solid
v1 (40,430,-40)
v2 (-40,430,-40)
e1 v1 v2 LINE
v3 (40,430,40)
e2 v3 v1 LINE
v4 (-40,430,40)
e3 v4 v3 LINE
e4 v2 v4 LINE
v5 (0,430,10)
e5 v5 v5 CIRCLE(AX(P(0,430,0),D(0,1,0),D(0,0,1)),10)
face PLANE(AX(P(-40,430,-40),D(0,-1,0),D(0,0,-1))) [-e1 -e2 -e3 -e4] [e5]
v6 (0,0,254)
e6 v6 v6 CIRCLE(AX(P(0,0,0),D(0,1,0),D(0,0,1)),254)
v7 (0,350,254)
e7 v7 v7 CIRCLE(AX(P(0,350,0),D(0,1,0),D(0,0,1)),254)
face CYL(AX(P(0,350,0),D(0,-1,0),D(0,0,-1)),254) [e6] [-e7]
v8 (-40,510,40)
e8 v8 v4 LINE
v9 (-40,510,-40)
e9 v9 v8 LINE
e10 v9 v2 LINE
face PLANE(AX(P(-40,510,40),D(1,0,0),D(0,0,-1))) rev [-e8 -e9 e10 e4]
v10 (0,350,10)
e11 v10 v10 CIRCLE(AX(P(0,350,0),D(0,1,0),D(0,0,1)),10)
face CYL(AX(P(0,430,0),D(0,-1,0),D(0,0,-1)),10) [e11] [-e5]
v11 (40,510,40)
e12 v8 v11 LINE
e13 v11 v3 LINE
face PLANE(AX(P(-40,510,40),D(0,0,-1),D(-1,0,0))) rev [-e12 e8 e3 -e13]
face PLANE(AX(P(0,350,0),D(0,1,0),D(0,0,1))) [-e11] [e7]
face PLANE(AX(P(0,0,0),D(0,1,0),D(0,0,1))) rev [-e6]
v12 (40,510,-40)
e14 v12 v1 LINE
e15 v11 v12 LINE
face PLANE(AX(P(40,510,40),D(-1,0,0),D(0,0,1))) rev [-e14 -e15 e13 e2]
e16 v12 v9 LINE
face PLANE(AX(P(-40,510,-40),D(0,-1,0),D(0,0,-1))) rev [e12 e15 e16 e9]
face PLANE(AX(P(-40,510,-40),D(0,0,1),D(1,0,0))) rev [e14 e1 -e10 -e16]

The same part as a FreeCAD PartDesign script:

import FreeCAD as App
import Part
import Sketcher
from FreeCAD import Vector

doc = App.newDocument("Part")
body = doc.addObject("PartDesign::Body", "Body")

sketch1 = body.newObject("Sketcher::SketchObject", "Sketch")
sketch1.AttachmentSupport = (doc.getObject("XZ_Plane"), [""])
sketch1.MapMode = "FlatFace"
sketch1.addGeometry(Part.Circle(Vector(0, 0, 0), Vector(0, 0, 1), 254), False)
sketch1.addConstraint([
    Sketcher.Constraint("Coincident", 0, 3, -1, 1),
    Sketcher.Constraint("Diameter", 0, 508.0),
])
pad1 = body.newObject("PartDesign::Pad", "Pad")
pad1.Profile = sketch1
pad1.Length = 350
pad1.Reversed = True

sketch2 = body.newObject("Sketcher::SketchObject", "Sketch001")
sketch2.AttachmentSupport = (doc.getObject("XZ_Plane"), [""])
sketch2.MapMode = "FlatFace"
sketch2.AttachmentOffset = App.Placement(Vector(0, 0, -350), App.Rotation())
sketch2.addGeometry(Part.Circle(Vector(0, 0, 0), Vector(0, 0, 1), 10), False)
sketch2.addConstraint([
    Sketcher.Constraint("Coincident", 0, 3, -1, 1),
    Sketcher.Constraint("Diameter", 0, 20.0),
])
pad2 = body.newObject("PartDesign::Pad", "Pad001")
pad2.Profile = sketch2
pad2.Length = 80
pad2.Reversed = True

sketch3 = body.newObject("Sketcher::SketchObject", "Sketch002")
sketch3.AttachmentSupport = (doc.getObject("XZ_Plane"), [""])
sketch3.MapMode = "FlatFace"
sketch3.AttachmentOffset = App.Placement(Vector(0, 0, -430), App.Rotation())
sketch3.addGeometry([
    Part.LineSegment(Vector(-40, -40, 0), Vector(-40, 40, 0)),
    Part.LineSegment(Vector(-40, 40, 0), Vector(40, 40, 0)),
    Part.LineSegment(Vector(40, 40, 0), Vector(40, -40, 0)),
    Part.LineSegment(Vector(40, -40, 0), Vector(-40, -40, 0)),
], False)
sketch3.addConstraint([
    Sketcher.Constraint("Coincident", 0, 2, 1, 1),
    Sketcher.Constraint("Coincident", 1, 2, 2, 1),
    Sketcher.Constraint("Coincident", 2, 2, 3, 1),
    Sketcher.Constraint("Coincident", 3, 2, 0, 1),
    Sketcher.Constraint("Vertical", 0),
    Sketcher.Constraint("Horizontal", 1),
    Sketcher.Constraint("Vertical", 2),
    Sketcher.Constraint("Horizontal", 3),
    Sketcher.Constraint("Symmetric", 0, 2, 2, 2, -1, 1),
    Sketcher.Constraint("Equal", 3, 0),
    Sketcher.Constraint("DistanceX", 1, 1, 1, 2, 80.0),
])
pad3 = body.newObject("PartDesign::Pad", "Pad002")
pad3.Profile = sketch3
pad3.Length = 80
pad3.Reversed = True

doc.recompute()
